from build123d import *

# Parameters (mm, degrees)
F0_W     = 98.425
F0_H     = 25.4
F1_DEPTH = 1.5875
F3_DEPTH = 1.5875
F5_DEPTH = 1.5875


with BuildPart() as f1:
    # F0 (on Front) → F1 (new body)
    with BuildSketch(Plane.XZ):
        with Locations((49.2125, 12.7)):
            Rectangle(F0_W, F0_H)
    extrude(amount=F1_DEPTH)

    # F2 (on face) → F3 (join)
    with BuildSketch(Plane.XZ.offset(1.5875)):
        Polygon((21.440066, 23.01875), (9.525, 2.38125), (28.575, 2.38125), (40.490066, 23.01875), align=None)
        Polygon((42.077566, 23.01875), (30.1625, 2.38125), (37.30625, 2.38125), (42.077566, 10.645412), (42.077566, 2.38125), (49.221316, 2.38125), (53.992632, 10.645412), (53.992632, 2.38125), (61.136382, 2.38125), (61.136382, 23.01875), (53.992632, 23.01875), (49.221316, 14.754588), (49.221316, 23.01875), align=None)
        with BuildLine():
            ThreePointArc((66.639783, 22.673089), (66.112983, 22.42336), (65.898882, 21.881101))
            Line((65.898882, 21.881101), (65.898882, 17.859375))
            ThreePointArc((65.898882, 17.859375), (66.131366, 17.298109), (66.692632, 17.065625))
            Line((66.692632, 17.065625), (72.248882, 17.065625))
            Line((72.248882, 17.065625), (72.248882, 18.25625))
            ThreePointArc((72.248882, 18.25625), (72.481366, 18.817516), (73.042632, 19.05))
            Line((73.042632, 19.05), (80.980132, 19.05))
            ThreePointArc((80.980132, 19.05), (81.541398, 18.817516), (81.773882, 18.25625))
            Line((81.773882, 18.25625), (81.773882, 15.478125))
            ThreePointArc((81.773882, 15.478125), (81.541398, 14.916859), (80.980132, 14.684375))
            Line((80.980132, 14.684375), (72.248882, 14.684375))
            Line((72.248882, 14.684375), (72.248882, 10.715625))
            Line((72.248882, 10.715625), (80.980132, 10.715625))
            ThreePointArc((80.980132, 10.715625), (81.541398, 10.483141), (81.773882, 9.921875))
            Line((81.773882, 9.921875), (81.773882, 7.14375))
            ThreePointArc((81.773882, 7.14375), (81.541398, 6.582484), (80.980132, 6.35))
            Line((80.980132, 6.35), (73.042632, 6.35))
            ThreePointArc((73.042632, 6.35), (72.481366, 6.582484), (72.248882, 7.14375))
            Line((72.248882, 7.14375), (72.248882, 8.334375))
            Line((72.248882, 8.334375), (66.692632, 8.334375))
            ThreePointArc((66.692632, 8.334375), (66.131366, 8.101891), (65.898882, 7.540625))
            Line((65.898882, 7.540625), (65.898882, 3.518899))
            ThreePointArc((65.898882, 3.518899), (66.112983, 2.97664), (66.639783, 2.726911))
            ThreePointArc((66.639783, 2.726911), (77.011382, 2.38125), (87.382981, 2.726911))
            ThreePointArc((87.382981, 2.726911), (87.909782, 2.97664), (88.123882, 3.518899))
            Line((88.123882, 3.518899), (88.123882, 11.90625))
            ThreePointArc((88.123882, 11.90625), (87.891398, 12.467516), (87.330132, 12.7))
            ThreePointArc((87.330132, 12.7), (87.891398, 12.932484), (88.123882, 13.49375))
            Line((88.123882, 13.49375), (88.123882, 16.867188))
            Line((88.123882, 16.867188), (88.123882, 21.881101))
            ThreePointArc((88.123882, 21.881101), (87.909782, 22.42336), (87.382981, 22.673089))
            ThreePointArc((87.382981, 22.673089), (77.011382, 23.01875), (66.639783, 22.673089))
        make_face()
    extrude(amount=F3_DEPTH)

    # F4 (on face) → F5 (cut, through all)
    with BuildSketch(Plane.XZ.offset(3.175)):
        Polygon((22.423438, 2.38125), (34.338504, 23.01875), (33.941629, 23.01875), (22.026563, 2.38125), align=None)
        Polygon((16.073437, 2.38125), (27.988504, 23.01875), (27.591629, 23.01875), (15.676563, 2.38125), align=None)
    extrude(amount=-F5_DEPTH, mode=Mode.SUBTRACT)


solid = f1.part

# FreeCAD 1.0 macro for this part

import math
import FreeCAD as App
import Part
import Sketcher
from FreeCAD import Vector
Q = App.Units.Quantity

doc = App.newDocument("Part")
body = doc.addObject("PartDesign::Body", "Body")

# Sketch on XZ plane
sketch1 = body.newObject("Sketcher::SketchObject", "Sketch")
sketch1.AttachmentSupport = (doc.getObject("XZ_Plane"), [""])
sketch1.MapMode = "FlatFace"
sketch1.addGeometry([
    Part.LineSegment(Vector(0, 25, 0), Vector(0, 0, 0)),
    Part.LineSegment(Vector(0, 0, 0), Vector(98, 0, 0)),
    Part.LineSegment(Vector(98, 0, 0), Vector(98, 25, 0)),
    Part.LineSegment(Vector(98, 25, 0), Vector(0, 25, 0)),
], False)
sketch1.addConstraint([
    Sketcher.Constraint("Coincident", 0, 2, 1, 1),
    Sketcher.Constraint("Coincident", 1, 2, 2, 1),
    Sketcher.Constraint("Coincident", 2, 2, 3, 1),
    Sketcher.Constraint("Coincident", 3, 2, 0, 1),
    Sketcher.Constraint("Vertical", 0),
    Sketcher.Constraint("Horizontal", 1),
    Sketcher.Constraint("Vertical", 2),
    Sketcher.Constraint("Horizontal", 3),
    Sketcher.Constraint("Coincident", 0, 2, -1, 1),
    Sketcher.Constraint("DistanceY", 0, 2, 0, 1, Q("1 in")),
    Sketcher.Constraint("DistanceX", 1, 1, 1, 2, Q("3.875 in")),
])
pad1 = body.newObject("PartDesign::Pad", "Pad")
pad1.Profile = sketch1
pad1.Length = Q("0.0625 in")

# Sketch on XZ plane
sketch2 = body.newObject("Sketcher::SketchObject", "Sketch001")
sketch2.AttachmentSupport = (doc.getObject("XZ_Plane"), [""])
sketch2.MapMode = "FlatFace"
sketch2.AttachmentOffset = App.Placement(Vector(0, 0, 0.0625 * 25.4), App.Rotation())
sketch2.addGeometry([
    Part.LineSegment(Vector(21.4, 23, 0), Vector(9.5, 2.4, 0)),  # 0
    Part.LineSegment(Vector(9.5, 2.4, 0), Vector(28.6, 2.4, 0)),  # 1
    Part.LineSegment(Vector(28.6, 2.4, 0), Vector(40.5, 23, 0)),  # 2
    Part.LineSegment(Vector(40.5, 23, 0), Vector(21.4, 23, 0)),  # 3
    Part.LineSegment(Vector(42.1, 23, 0), Vector(30.2, 2.4, 0)),  # 4
    Part.LineSegment(Vector(30.2, 2.4, 0), Vector(37.3, 2.4, 0)),  # 5
    Part.LineSegment(Vector(37.3, 2.4, 0), Vector(42.1, 10.6, 0)),  # 6
    Part.LineSegment(Vector(42.1, 10.6, 0), Vector(42.1, 2.4, 0)),  # 7
    Part.LineSegment(Vector(42.1, 2.4, 0), Vector(49.2, 2.4, 0)),  # 8
    Part.LineSegment(Vector(49.2, 2.4, 0), Vector(54, 10.6, 0)),  # 9
    Part.LineSegment(Vector(54, 10.6, 0), Vector(54, 2.4, 0)),  # 10
    Part.LineSegment(Vector(54, 2.4, 0), Vector(61.1, 2.4, 0)),  # 11
    Part.LineSegment(Vector(61.1, 2.4, 0), Vector(61.1, 23, 0)),  # 12
    Part.LineSegment(Vector(61.1, 23, 0), Vector(54, 23, 0)),  # 13
    Part.LineSegment(Vector(54, 23, 0), Vector(49.2, 14.8, 0)),  # 14
    Part.LineSegment(Vector(49.2, 14.8, 0), Vector(49.2, 23, 0)),  # 15
    Part.LineSegment(Vector(49.2, 23, 0), Vector(42.1, 23, 0)),  # 16
    Part.ArcOfCircle(Part.Circle(Vector(66.7, 21.9, 0), Vector(0, 0, 1), 0.8), math.radians(94), math.radians(180)),  # 17
    Part.LineSegment(Vector(65.9, 21.9, 0), Vector(65.9, 17.9, 0)),  # 18
    Part.ArcOfCircle(Part.Circle(Vector(66.7, 17.9, 0), Vector(0, 0, 1), 0.8), math.radians(-180), math.radians(-90)),  # 19
    Part.LineSegment(Vector(66.7, 17.1, 0), Vector(72.2, 17.1, 0)),  # 20
    Part.LineSegment(Vector(72.2, 17.1, 0), Vector(72.2, 18.3, 0)),  # 21
    Part.ArcOfCircle(Part.Circle(Vector(73, 18.3, 0), Vector(0, 0, 1), 0.8), math.radians(90), math.radians(180)),  # 22
    Part.LineSegment(Vector(73, 19.1, 0), Vector(81, 19.1, 0)),  # 23
    Part.ArcOfCircle(Part.Circle(Vector(81, 18.3, 0), Vector(0, 0, 1), 0.8), math.radians(0), math.radians(90)),  # 24
    Part.LineSegment(Vector(81.8, 18.3, 0), Vector(81.8, 15.5, 0)),  # 25
    Part.ArcOfCircle(Part.Circle(Vector(81, 15.5, 0), Vector(0, 0, 1), 0.8), math.radians(-90), math.radians(0)),  # 26
    Part.LineSegment(Vector(81, 14.7, 0), Vector(72.2, 14.7, 0)),  # 27
    Part.LineSegment(Vector(72.2, 14.7, 0), Vector(72.2, 10.7, 0)),  # 28
    Part.LineSegment(Vector(72.2, 10.7, 0), Vector(81, 10.7, 0)),  # 29
    Part.ArcOfCircle(Part.Circle(Vector(81, 9.9, 0), Vector(0, 0, 1), 0.8), math.radians(0), math.radians(90)),  # 30
    Part.LineSegment(Vector(81.8, 9.9, 0), Vector(81.8, 7.1, 0)),  # 31
    Part.ArcOfCircle(Part.Circle(Vector(81, 7.1, 0), Vector(0, 0, 1), 0.8), math.radians(-90), math.radians(0)),  # 32
    Part.LineSegment(Vector(81, 6.3, 0), Vector(73, 6.3, 0)),  # 33
    Part.ArcOfCircle(Part.Circle(Vector(73, 7.1, 0), Vector(0, 0, 1), 0.8), math.radians(-180), math.radians(-90)),  # 34
    Part.LineSegment(Vector(72.2, 7.1, 0), Vector(72.2, 8.3, 0)),  # 35
    Part.LineSegment(Vector(72.2, 8.3, 0), Vector(66.7, 8.3, 0)),  # 36
    Part.ArcOfCircle(Part.Circle(Vector(66.7, 7.5, 0), Vector(0, 0, 1), 0.8), math.radians(90), math.radians(180)),  # 37
    Part.LineSegment(Vector(65.9, 7.5, 0), Vector(65.9, 3.5, 0)),  # 38
    Part.ArcOfCircle(Part.Circle(Vector(66.7, 3.5, 0), Vector(0, 0, 1), 0.8), math.radians(-180), math.radians(-94)),  # 39
    Part.ArcOfCircle(Part.Circle(Vector(77, 158.2, 0), Vector(0, 0, 1), 155.8), math.radians(-93.82), math.radians(-86.18)),  # 40
    Part.ArcOfCircle(Part.Circle(Vector(87.3, 3.5, 0), Vector(0, 0, 1), 0.8), math.radians(-86), math.radians(0)),  # 41
    Part.LineSegment(Vector(88.1, 3.5, 0), Vector(88.1, 11.9, 0)),  # 42
    Part.ArcOfCircle(Part.Circle(Vector(87.3, 11.9, 0), Vector(0, 0, 1), 0.8), math.radians(0), math.radians(90)),  # 43
    Part.ArcOfCircle(Part.Circle(Vector(87.3, 13.5, 0), Vector(0, 0, 1), 0.8), math.radians(-90), math.radians(0)),  # 44
    Part.LineSegment(Vector(88.1, 13.5, 0), Vector(88.1, 21.9, 0)),  # 45
    Part.ArcOfCircle(Part.Circle(Vector(87.3, 21.9, 0), Vector(0, 0, 1), 0.8), math.radians(0), math.radians(86)),  # 46
    Part.ArcOfCircle(Part.Circle(Vector(77, -132.8, 0), Vector(0, 0, 1), 155.8), math.radians(86.18), math.radians(93.82)),  # 47
], False)
sketch2.addConstraint([
    Sketcher.Constraint("Coincident", 0, 2, 1, 1),
    Sketcher.Constraint("Coincident", 1, 2, 2, 1),
    Sketcher.Constraint("Coincident", 2, 2, 3, 1),
    Sketcher.Constraint("Coincident", 3, 2, 0, 1),
    Sketcher.Constraint("Coincident", 4, 2, 5, 1),
    Sketcher.Constraint("Coincident", 5, 2, 6, 1),
    Sketcher.Constraint("Coincident", 6, 2, 7, 1),
    Sketcher.Constraint("Coincident", 7, 2, 8, 1),
    Sketcher.Constraint("Coincident", 8, 2, 9, 1),
    Sketcher.Constraint("Coincident", 9, 2, 10, 1),
    Sketcher.Constraint("Coincident", 10, 2, 11, 1),
    Sketcher.Constraint("Coincident", 11, 2, 12, 1),
    Sketcher.Constraint("Coincident", 12, 2, 13, 1),
    Sketcher.Constraint("Coincident", 13, 2, 14, 1),
    Sketcher.Constraint("Coincident", 14, 2, 15, 1),
    Sketcher.Constraint("Coincident", 15, 2, 16, 1),
    Sketcher.Constraint("Coincident", 16, 2, 4, 1),
    Sketcher.Constraint("Tangent", 17, 2, 18, 1),
    Sketcher.Constraint("Tangent", 18, 2, 19, 1),
    Sketcher.Constraint("Tangent", 19, 2, 20, 1),
    Sketcher.Constraint("Coincident", 20, 2, 21, 1),
    Sketcher.Constraint("Tangent", 21, 2, 22, 2),
    Sketcher.Constraint("Tangent", 22, 1, 23, 1),
    Sketcher.Constraint("Tangent", 23, 2, 24, 2),
    Sketcher.Constraint("Tangent", 24, 1, 25, 1),
    Sketcher.Constraint("Tangent", 25, 2, 26, 2),
    Sketcher.Constraint("Tangent", 26, 1, 27, 1),
    Sketcher.Constraint("Coincident", 27, 2, 28, 1),
    Sketcher.Constraint("Coincident", 28, 2, 29, 1),
    Sketcher.Constraint("Tangent", 29, 2, 30, 2),
    Sketcher.Constraint("Tangent", 30, 1, 31, 1),
    Sketcher.Constraint("Tangent", 31, 2, 32, 2),
    Sketcher.Constraint("Tangent", 32, 1, 33, 1),
    Sketcher.Constraint("Tangent", 33, 2, 34, 2),
    Sketcher.Constraint("Tangent", 34, 1, 35, 1),
    Sketcher.Constraint("Coincident", 35, 2, 36, 1),
    Sketcher.Constraint("Tangent", 36, 2, 37, 1),
    Sketcher.Constraint("Tangent", 37, 2, 38, 1),
    Sketcher.Constraint("Tangent", 38, 2, 39, 1),
    Sketcher.Constraint("Tangent", 39, 2, 40, 1),
    Sketcher.Constraint("Tangent", 40, 2, 41, 1),
    Sketcher.Constraint("Tangent", 41, 2, 42, 1),
    Sketcher.Constraint("Tangent", 42, 2, 43, 1),
    Sketcher.Constraint("Tangent", 43, 2, 44, 1),
    Sketcher.Constraint("Tangent", 44, 2, 45, 1),
    Sketcher.Constraint("Tangent", 45, 2, 46, 1),
    Sketcher.Constraint("Tangent", 46, 2, 47, 1),
    Sketcher.Constraint("Tangent", 47, 2, 17, 1),
    Sketcher.Constraint("Horizontal", 1),
    Sketcher.Constraint("Horizontal", 3),
    Sketcher.Constraint("Horizontal", 5),
    Sketcher.Constraint("Vertical", 7),
    Sketcher.Constraint("Horizontal", 8),
    Sketcher.Constraint("Vertical", 10),
    Sketcher.Constraint("Horizontal", 11),
    Sketcher.Constraint("Vertical", 12),
    Sketcher.Constraint("Horizontal", 13),
    Sketcher.Constraint("Vertical", 15),
    Sketcher.Constraint("Horizontal", 16),
    Sketcher.Constraint("Vertical", 18),
    Sketcher.Constraint("Horizontal", 20),
    Sketcher.Constraint("Vertical", 21),
    Sketcher.Constraint("Horizontal", 23),
    Sketcher.Constraint("Vertical", 25),
    Sketcher.Constraint("Horizontal", 27),
    Sketcher.Constraint("Vertical", 28),
    Sketcher.Constraint("Horizontal", 29),
    Sketcher.Constraint("Vertical", 31),
    Sketcher.Constraint("Horizontal", 33),
    Sketcher.Constraint("Vertical", 35),
    Sketcher.Constraint("Horizontal", 36),
    Sketcher.Constraint("Vertical", 38),
    Sketcher.Constraint("Vertical", 42),
    Sketcher.Constraint("Vertical", 45),
    Sketcher.Constraint("Equal", 17, 19),
    Sketcher.Constraint("Equal", 19, 22),
    Sketcher.Constraint("Equal", 22, 24),
    Sketcher.Constraint("Equal", 24, 26),
    Sketcher.Constraint("Equal", 26, 30),
    Sketcher.Constraint("Equal", 30, 32),
    Sketcher.Constraint("Equal", 32, 34),
    Sketcher.Constraint("Equal", 34, 37),
    Sketcher.Constraint("Equal", 37, 39),
    Sketcher.Constraint("Equal", 39, 41),
    Sketcher.Constraint("Equal", 41, 43),
    Sketcher.Constraint("Equal", 43, 44),
    Sketcher.Constraint("Equal", 44, 46),
    Sketcher.Constraint("Equal", 40, 47),
    Sketcher.Constraint("Parallel", 0, 2),
    Sketcher.Constraint("Parallel", 2, 4),
    Sketcher.Constraint("Parallel", 4, 6),
    Sketcher.Constraint("Parallel", 6, 9),
    Sketcher.Constraint("Parallel", 9, 14),
    Sketcher.Constraint("Horizontal", 39, 3, 41, 3),
    Sketcher.Constraint("Horizontal", 17, 3, 46, 3),
    Sketcher.Constraint("Horizontal", 1, 2, 4, 2),
    Sketcher.Constraint("Horizontal", 5, 2, 7, 2),
    Sketcher.Constraint("Horizontal", 6, 2, 9, 2),
    Sketcher.Constraint("Horizontal", 8, 2, 10, 2),
    Sketcher.Constraint("Horizontal", 3, 2, 12, 2),
    Sketcher.Constraint("Horizontal", 13, 2, 15, 2),
    Sketcher.Constraint("Vertical", 26, 3, 30, 3),
    Sketcher.Constraint("Vertical", 22, 3, 34, 3),
    Sketcher.Constraint("Vertical", 19, 3, 37, 3),
    Sketcher.Constraint("Vertical", 43, 3, 44, 3),
    Sketcher.Constraint("Vertical", 10, 2, 13, 2),
    Sketcher.Constraint("Vertical", 8, 2, 14, 2),
    Sketcher.Constraint("Vertical", 7, 2, 16, 2),
    Sketcher.Constraint("Vertical", 21, 2, 27, 2),
    Sketcher.Constraint("Equal", 5, 8),
    Sketcher.Constraint("Equal", 8, 11),
    Sketcher.Constraint("Equal", 25, 31),
    Sketcher.Constraint("Equal", 21, 35),
    Sketcher.Constraint("Equal", 18, 38),
    Sketcher.Constraint("Equal", 42, 45),
    Sketcher.Constraint("Angle", 0, Q("-120 deg")),
    Sketcher.Constraint("Radius", 17, Q("0.03125 in")),
    Sketcher.Constraint("DistanceX", 1, 1, 1, 2, Q("0.75 in")),
    Sketcher.Constraint("DistanceY", -1, 1, 43, 2, Q("0.5 in")),
    Sketcher.Constraint("DistanceX", 5, 1, 5, 2, Q("0.28125 in")),
    Sketcher.Constraint("DistanceX", 20, 1, 20, 2, Q("0.21875 in")),
    Sketcher.Constraint("DistanceX", 23, 1, 23, 2, Q("0.3125 in")),
    Sketcher.Constraint("DistanceY", 12, 1, 12, 2, Q("0.8125 in")),
    Sketcher.Constraint("DistanceY", 21, 1, 21, 2, Q("0.046875 in")),
    Sketcher.Constraint("DistanceY", 25, 2, 25, 1, Q("0.109375 in")),
    Sketcher.Constraint("DistanceY", 28, 2, 28, 1, Q("0.15625 in")),
    Sketcher.Constraint("DistanceX", -1, 1, 0, 2, Q("0.375 in")),
    Sketcher.Constraint("DistanceY", -1, 1, 0, 2, Q("0.09375 in")),
    Sketcher.Constraint("DistanceX", -1, 1, 4, 2, Q("1.1875 in")),
    Sketcher.Constraint("Radius", 40, 155.773355),
    Sketcher.Constraint("DistanceY", 42, 1, 42, 2, 8.387351),
    Sketcher.Constraint("DistanceX", -1, 1, 24, 3, 80.980132),
    Sketcher.Constraint("DistanceX", -1, 1, 40, 3, 77.011382),
])
pad2 = body.newObject("PartDesign::Pad", "Pad001")
pad2.Profile = sketch2
pad2.Length = Q("0.0625 in")

# Sketch on XZ plane
sketch3 = body.newObject("Sketcher::SketchObject", "Sketch002")
sketch3.AttachmentSupport = (doc.getObject("XZ_Plane"), [""])
sketch3.MapMode = "FlatFace"
sketch3.AttachmentOffset = App.Placement(Vector(0, 0, 0.125 * 25.4), App.Rotation())
sketch3.addGeometry([
    Part.LineSegment(Vector(22.42, 2.38, 0), Vector(34.34, 23.02, 0)),  # 0
    Part.LineSegment(Vector(34.34, 23.02, 0), Vector(33.94, 23.02, 0)),  # 1
    Part.LineSegment(Vector(33.94, 23.02, 0), Vector(22.03, 2.38, 0)),  # 2
    Part.LineSegment(Vector(22.03, 2.38, 0), Vector(22.42, 2.38, 0)),  # 3
    Part.LineSegment(Vector(16.07, 2.38, 0), Vector(27.99, 23.02, 0)),  # 4
    Part.LineSegment(Vector(27.99, 23.02, 0), Vector(27.59, 23.02, 0)),  # 5
    Part.LineSegment(Vector(27.59, 23.02, 0), Vector(15.68, 2.38, 0)),  # 6
    Part.LineSegment(Vector(15.68, 2.38, 0), Vector(16.07, 2.38, 0)),  # 7
], False)
sketch3.addConstraint([
    Sketcher.Constraint("Coincident", 0, 2, 1, 1),
    Sketcher.Constraint("Coincident", 1, 2, 2, 1),
    Sketcher.Constraint("Coincident", 2, 2, 3, 1),
    Sketcher.Constraint("Coincident", 3, 2, 0, 1),
    Sketcher.Constraint("Coincident", 4, 2, 5, 1),
    Sketcher.Constraint("Coincident", 5, 2, 6, 1),
    Sketcher.Constraint("Coincident", 6, 2, 7, 1),
    Sketcher.Constraint("Coincident", 7, 2, 4, 1),
    Sketcher.Constraint("Horizontal", 1),
    Sketcher.Constraint("Horizontal", 3),
    Sketcher.Constraint("Horizontal", 5),
    Sketcher.Constraint("Horizontal", 7),
    Sketcher.Constraint("Parallel", 0, 2),
    Sketcher.Constraint("Parallel", 2, 4),
    Sketcher.Constraint("Parallel", 4, 6),
    Sketcher.Constraint("Horizontal", 1, 2, 4, 2),
    Sketcher.Constraint("Horizontal", 3, 2, 6, 2),
    Sketcher.Constraint("Equal", 3, 5),
    Sketcher.Constraint("Angle", 0, Q("60 deg")),
    Sketcher.Constraint("DistanceX", 1, 2, 1, 1, Q("0.015625 in")),
    Sketcher.Constraint("DistanceX", 4, 2, 0, 2, Q("0.25 in")),
    Sketcher.Constraint("DistanceY", -1, 1, 0, 2, Q("0.90625 in")),
    Sketcher.Constraint("DistanceY", -1, 1, 2, 2, Q("0.09375 in")),
    Sketcher.Constraint("DistanceX", -1, 1, 1, 2, 33.941629),
])
pocket1 = body.newObject("PartDesign::Pocket", "Pocket")
pocket1.Profile = sketch3
pocket1.Length = Q("0.0625 in")

doc.recompute()
